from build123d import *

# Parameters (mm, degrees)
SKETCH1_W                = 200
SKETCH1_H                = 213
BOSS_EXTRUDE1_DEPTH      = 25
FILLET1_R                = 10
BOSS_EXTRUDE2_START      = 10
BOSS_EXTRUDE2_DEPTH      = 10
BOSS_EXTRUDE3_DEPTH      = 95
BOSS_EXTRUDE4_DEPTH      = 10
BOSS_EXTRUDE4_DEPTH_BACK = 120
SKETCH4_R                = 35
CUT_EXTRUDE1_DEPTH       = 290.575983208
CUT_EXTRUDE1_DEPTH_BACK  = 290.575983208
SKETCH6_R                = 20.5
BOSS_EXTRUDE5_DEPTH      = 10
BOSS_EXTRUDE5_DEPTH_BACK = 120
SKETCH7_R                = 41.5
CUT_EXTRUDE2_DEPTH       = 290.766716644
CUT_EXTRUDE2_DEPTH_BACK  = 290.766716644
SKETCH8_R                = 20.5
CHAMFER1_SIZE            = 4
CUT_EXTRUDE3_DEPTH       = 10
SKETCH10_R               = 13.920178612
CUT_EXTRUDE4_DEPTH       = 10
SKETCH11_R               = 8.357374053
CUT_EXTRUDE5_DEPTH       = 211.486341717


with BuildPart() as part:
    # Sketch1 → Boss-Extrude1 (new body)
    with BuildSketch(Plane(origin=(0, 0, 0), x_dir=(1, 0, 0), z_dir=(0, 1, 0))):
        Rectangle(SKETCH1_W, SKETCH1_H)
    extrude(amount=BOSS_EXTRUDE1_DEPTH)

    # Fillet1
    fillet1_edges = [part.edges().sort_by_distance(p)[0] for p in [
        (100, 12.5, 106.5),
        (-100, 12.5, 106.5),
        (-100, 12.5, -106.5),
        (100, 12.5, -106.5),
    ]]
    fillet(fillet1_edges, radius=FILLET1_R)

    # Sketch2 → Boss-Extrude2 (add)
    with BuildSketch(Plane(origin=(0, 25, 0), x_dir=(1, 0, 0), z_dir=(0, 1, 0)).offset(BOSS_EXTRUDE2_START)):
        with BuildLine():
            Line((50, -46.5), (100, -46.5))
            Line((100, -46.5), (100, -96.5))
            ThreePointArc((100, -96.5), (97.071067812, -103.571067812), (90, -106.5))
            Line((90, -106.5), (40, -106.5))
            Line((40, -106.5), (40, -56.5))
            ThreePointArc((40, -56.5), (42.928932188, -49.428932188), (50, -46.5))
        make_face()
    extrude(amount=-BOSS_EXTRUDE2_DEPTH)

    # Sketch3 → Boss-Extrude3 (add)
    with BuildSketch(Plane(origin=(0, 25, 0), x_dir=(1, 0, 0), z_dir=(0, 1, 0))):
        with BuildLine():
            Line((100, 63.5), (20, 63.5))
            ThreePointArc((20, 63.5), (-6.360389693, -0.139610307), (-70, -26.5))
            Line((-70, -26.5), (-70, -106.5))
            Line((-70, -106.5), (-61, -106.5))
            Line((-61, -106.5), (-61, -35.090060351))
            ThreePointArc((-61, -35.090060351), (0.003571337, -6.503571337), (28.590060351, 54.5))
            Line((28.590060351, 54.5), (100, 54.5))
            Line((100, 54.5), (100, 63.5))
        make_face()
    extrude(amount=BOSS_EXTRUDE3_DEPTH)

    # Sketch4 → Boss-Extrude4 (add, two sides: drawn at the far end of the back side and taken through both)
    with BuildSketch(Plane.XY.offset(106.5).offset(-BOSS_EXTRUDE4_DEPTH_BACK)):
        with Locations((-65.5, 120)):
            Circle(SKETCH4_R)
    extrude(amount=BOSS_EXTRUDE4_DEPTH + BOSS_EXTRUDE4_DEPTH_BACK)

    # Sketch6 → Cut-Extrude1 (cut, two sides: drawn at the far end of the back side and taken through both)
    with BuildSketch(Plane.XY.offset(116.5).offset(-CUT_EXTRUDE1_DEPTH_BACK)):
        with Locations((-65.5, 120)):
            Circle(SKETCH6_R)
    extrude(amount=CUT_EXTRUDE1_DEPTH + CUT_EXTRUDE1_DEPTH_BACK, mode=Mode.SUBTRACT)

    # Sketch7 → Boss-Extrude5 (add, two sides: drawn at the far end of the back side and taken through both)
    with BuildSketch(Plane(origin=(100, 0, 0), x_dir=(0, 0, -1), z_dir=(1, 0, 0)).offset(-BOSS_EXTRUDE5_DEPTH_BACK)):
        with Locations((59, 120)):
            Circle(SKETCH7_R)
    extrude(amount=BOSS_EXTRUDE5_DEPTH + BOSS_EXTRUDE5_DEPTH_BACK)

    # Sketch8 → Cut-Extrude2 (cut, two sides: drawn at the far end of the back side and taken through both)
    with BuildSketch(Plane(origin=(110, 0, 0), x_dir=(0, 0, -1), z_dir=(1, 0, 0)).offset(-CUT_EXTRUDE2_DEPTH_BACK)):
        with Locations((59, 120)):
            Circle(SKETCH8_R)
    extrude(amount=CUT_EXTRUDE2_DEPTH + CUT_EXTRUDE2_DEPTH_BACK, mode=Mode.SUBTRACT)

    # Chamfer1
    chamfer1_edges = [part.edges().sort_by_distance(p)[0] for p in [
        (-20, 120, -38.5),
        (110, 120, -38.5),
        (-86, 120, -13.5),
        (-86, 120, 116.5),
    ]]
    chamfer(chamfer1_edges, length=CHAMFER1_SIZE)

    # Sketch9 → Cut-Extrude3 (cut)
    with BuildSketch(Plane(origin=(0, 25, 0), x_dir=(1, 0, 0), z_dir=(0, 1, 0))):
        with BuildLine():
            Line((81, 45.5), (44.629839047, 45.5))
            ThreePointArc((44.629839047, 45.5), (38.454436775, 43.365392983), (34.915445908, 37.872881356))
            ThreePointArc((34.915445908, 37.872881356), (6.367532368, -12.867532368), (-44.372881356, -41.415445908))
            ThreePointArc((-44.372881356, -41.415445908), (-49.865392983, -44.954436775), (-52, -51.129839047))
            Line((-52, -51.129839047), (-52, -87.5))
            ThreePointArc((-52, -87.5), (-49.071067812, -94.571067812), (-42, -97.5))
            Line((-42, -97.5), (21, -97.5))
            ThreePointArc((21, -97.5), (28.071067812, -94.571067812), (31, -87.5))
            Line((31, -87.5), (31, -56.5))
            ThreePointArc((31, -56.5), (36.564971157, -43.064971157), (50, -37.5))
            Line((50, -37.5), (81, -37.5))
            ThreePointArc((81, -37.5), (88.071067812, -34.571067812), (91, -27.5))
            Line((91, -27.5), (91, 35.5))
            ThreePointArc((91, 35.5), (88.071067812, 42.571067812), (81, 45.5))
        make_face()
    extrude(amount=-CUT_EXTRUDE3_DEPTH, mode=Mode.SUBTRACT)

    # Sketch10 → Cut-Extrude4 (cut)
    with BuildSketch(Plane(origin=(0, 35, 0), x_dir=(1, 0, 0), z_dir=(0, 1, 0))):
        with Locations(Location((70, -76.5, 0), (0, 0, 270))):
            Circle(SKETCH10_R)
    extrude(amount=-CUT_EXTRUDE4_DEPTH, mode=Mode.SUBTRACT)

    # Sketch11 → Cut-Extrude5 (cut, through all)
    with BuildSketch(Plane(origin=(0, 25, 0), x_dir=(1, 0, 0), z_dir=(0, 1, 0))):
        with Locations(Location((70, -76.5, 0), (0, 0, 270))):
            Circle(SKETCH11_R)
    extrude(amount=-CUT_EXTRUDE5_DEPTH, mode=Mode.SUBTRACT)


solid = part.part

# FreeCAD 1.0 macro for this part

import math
import FreeCAD as App
import Part
import Sketcher
from FreeCAD import Vector


def edges_at(feature, points):
    """Names of the edges that pass closest to the given points."""
    edges = feature.Shape.Edges
    near = lambda p: min(range(len(edges)), key=lambda i: edges[i].distToShape(Part.Vertex(*p))[0])
    return sorted({f"Edge{near(p) + 1}" for p in points})

doc = App.newDocument("Part")
body = doc.addObject("PartDesign::Body", "Body")

sketch1 = body.newObject("Sketcher::SketchObject", "Sketch")
sketch1.AttachmentSupport = (doc.getObject("XZ_Plane"), [""])
sketch1.MapMode = "FlatFace"
sketch1.addGeometry(Part.LineSegment(Vector(-100, -106, 0), Vector(-100, 106, 0)), False)
sketch1.addGeometry(Part.LineSegment(Vector(-100, 106, 0), Vector(100, 106, 0)), False)
sketch1.addGeometry(Part.LineSegment(Vector(100, 106, 0), Vector(100, -106, 0)), False)
sketch1.addGeometry(Part.LineSegment(Vector(100, -106, 0), Vector(-100, -106, 0)), False)
sketch1.addConstraint(Sketcher.Constraint("Coincident", 0, 2, 1, 1))
sketch1.addConstraint(Sketcher.Constraint("Coincident", 1, 2, 2, 1))
sketch1.addConstraint(Sketcher.Constraint("Coincident", 2, 2, 3, 1))
sketch1.addConstraint(Sketcher.Constraint("Coincident", 3, 2, 0, 1))
sketch1.addConstraint(Sketcher.Constraint("Vertical", 0))
sketch1.addConstraint(Sketcher.Constraint("Horizontal", 1))
sketch1.addConstraint(Sketcher.Constraint("Vertical", 2))
sketch1.addConstraint(Sketcher.Constraint("Horizontal", 3))
sketch1.addConstraint(Sketcher.Constraint("Symmetric", 0, 2, 2, 2, -1, 1))
sketch1.addConstraint(Sketcher.Constraint("DistanceX", 1, 1, 1, 2, 200.0))
sketch1.addConstraint(Sketcher.Constraint("DistanceY", 0, 1, 0, 2, 213.0))
pad1 = body.newObject("PartDesign::Pad", "Pad")
pad1.Profile = sketch1
pad1.Length = 25
pad1.Reversed = True
doc.recompute()

fillet = body.newObject("PartDesign::Fillet", "Fillet")
fillet.Base = (pad1, edges_at(pad1, [
    (100, 12.5, 106.5),
    (-100, 12.5, 106.5),
    (-100, 12.5, -106.5),
    (100, 12.5, -106.5),
]))
fillet.Radius = 10

sketch2 = body.newObject("Sketcher::SketchObject", "Sketch001")
sketch2.AttachmentSupport = (doc.getObject("XZ_Plane"), [""])
sketch2.MapMode = "FlatFace"
sketch2.AttachmentOffset = App.Placement(Vector(0, 0, -35), App.Rotation())
sketch2.addGeometry(Part.LineSegment(Vector(100, 46, 0), Vector(50, 46, 0)), False)
sketch2.addGeometry(Part.ArcOfCircle(Part.Circle(Vector(50, 56, 0), Vector(0, 0, 1), 10), math.radians(180), math.radians(270)), False)
sketch2.addGeometry(Part.LineSegment(Vector(40, 56, 0), Vector(40, 106, 0)), False)
sketch2.addGeometry(Part.LineSegment(Vector(40, 106, 0), Vector(90, 106, 0)), False)
sketch2.addGeometry(Part.ArcOfCircle(Part.Circle(Vector(90, 96, 0), Vector(0, 0, 1), 10), math.radians(0), math.radians(90)), False)
sketch2.addGeometry(Part.LineSegment(Vector(100, 96, 0), Vector(100, 46, 0)), False)
sketch2.addConstraint(Sketcher.Constraint("Tangent", 0, 2, 1, 2))
sketch2.addConstraint(Sketcher.Constraint("Tangent", 1, 1, 2, 1))
sketch2.addConstraint(Sketcher.Constraint("Coincident", 2, 2, 3, 1))
sketch2.addConstraint(Sketcher.Constraint("Tangent", 3, 2, 4, 2))
sketch2.addConstraint(Sketcher.Constraint("Tangent", 4, 1, 5, 1))
sketch2.addConstraint(Sketcher.Constraint("Coincident", 5, 2, 0, 1))
sketch2.addConstraint(Sketcher.Constraint("Horizontal", 0))
sketch2.addConstraint(Sketcher.Constraint("Vertical", 2))
sketch2.addConstraint(Sketcher.Constraint("Horizontal", 3))
sketch2.addConstraint(Sketcher.Constraint("Vertical", 5))
sketch2.addConstraint(Sketcher.Constraint("Equal", 1, 4))
sketch2.addConstraint(Sketcher.Constraint("Equal", 3, 2))
sketch2.addConstraint(Sketcher.Constraint("Radius", 1, 10.0))
sketch2.addConstraint(Sketcher.Constraint("DistanceX", 0, 2, 0, 1, 50.0))
sketch2.addConstraint(Sketcher.Constraint("DistanceX", -1, 1, 1, 3, 50.0))
sketch2.addConstraint(Sketcher.Constraint("DistanceY", -1, 1, 1, 3, 56.5))
pad2 = body.newObject("PartDesign::Pad", "Pad001")
pad2.Profile = sketch2
pad2.Length = 10

sketch3 = body.newObject("Sketcher::SketchObject", "Sketch002")
sketch3.AttachmentSupport = (doc.getObject("XZ_Plane"), [""])
sketch3.MapMode = "FlatFace"
sketch3.AttachmentOffset = App.Placement(Vector(0, 0, -25), App.Rotation())
sketch3.addGeometry(Part.LineSegment(Vector(100, -64, 0), Vector(20, -64, 0)), False)
sketch3.addGeometry(Part.ArcOfCircle(Part.Circle(Vector(-70, -63, 0), Vector(0, 0, 1), 90), math.radians(0), math.radians(90)), False)
sketch3.addGeometry(Part.LineSegment(Vector(-70, 26, 0), Vector(-70, 106, 0)), False)
sketch3.addGeometry(Part.LineSegment(Vector(-70, 106, 0), Vector(-61, 106, 0)), False)
sketch3.addGeometry(Part.LineSegment(Vector(-61, 106, 0), Vector(-61, 35, 0)), False)
sketch3.addGeometry(Part.ArcOfCircle(Part.Circle(Vector(-70, -64, 0), Vector(0, 0, 1), 99), math.radians(5), math.radians(85)), False)
sketch3.addGeometry(Part.LineSegment(Vector(29, -54, 0), Vector(100, -54, 0)), False)
sketch3.addGeometry(Part.LineSegment(Vector(100, -54, 0), Vector(100, -64, 0)), False)
sketch3.addConstraint(Sketcher.Constraint("Coincident", 0, 2, 1, 1))
sketch3.addConstraint(Sketcher.Constraint("Coincident", 1, 2, 2, 1))
sketch3.addConstraint(Sketcher.Constraint("Coincident", 2, 2, 3, 1))
sketch3.addConstraint(Sketcher.Constraint("Coincident", 3, 2, 4, 1))
sketch3.addConstraint(Sketcher.Constraint("Coincident", 4, 2, 5, 2))
sketch3.addConstraint(Sketcher.Constraint("Coincident", 5, 1, 6, 1))
sketch3.addConstraint(Sketcher.Constraint("Coincident", 6, 2, 7, 1))
sketch3.addConstraint(Sketcher.Constraint("Coincident", 7, 2, 0, 1))
sketch3.addConstraint(Sketcher.Constraint("Horizontal", 0))
sketch3.addConstraint(Sketcher.Constraint("Vertical", 2))
sketch3.addConstraint(Sketcher.Constraint("Horizontal", 3))
sketch3.addConstraint(Sketcher.Constraint("Vertical", 4))
sketch3.addConstraint(Sketcher.Constraint("Horizontal", 6))
sketch3.addConstraint(Sketcher.Constraint("Vertical", 7))
sketch3.addConstraint(Sketcher.Constraint("Coincident", 5, 3, 1, 3))
sketch3.addConstraint(Sketcher.Constraint("Horizontal", 5, 3, 0, 2))
sketch3.addConstraint(Sketcher.Constraint("Vertical", 5, 3, 1, 2))
sketch3.addConstraint(Sketcher.Constraint("Equal", 0, 2))
sketch3.addConstraint(Sketcher.Constraint("Equal", 6, 4))
sketch3.addConstraint(Sketcher.Constraint("Radius", 1, 90.0))
sketch3.addConstraint(Sketcher.Constraint("Radius", 5, 99.0))
sketch3.addConstraint(Sketcher.Constraint("DistanceX", 0, 2, 0, 1, 80.0))
sketch3.addConstraint(Sketcher.Constraint("DistanceX", 3, 1, 3, 2, 9.0))
sketch3.addConstraint(Sketcher.Constraint("DistanceX", 1, 3, -1, 1, 70.0))
sketch3.addConstraint(Sketcher.Constraint("DistanceY", 1, 3, -1, 1, 63.5))
pad3 = body.newObject("PartDesign::Pad", "Pad002")
pad3.Profile = sketch3
pad3.Length = 95
pad3.Reversed = True

sketch4 = body.newObject("Sketcher::SketchObject", "Sketch003")
sketch4.AttachmentSupport = (doc.getObject("XY_Plane"), [""])
sketch4.MapMode = "FlatFace"
sketch4.AttachmentOffset = App.Placement(Vector(0, 0, 106.5), App.Rotation())
sketch4.addGeometry(Part.Circle(Vector(-66, 120, 0), Vector(0, 0, 1), 35), False)
sketch4.addConstraint(Sketcher.Constraint("Diameter", 0, 70.0))
sketch4.addConstraint(Sketcher.Constraint("DistanceY", -1, 1, 0, 3, 120.0))
sketch4.addConstraint(Sketcher.Constraint("DistanceX", 0, 3, -1, 1, 65.5))
pad4 = body.newObject("PartDesign::Pad", "Pad003")
pad4.Profile = sketch4
pad4.Type = "TwoLengths"
pad4.Length = 10
pad4.Length2 = 120

sketch5 = body.newObject("Sketcher::SketchObject", "Sketch004")
sketch5.AttachmentSupport = (doc.getObject("XY_Plane"), [""])
sketch5.MapMode = "FlatFace"
sketch5.AttachmentOffset = App.Placement(Vector(0, 0, 116.5), App.Rotation())
sketch5.addGeometry(Part.Circle(Vector(-66, 120, 0), Vector(0, 0, 1), 20), False)
sketch5.addConstraint(Sketcher.Constraint("Diameter", 0, 41.0))
sketch5.addConstraint(Sketcher.Constraint("DistanceY", -1, 1, 0, 3, 120.0))
sketch5.addConstraint(Sketcher.Constraint("DistanceX", 0, 3, -1, 1, 65.5))
pocket1 = body.newObject("PartDesign::Pocket", "Pocket")
pocket1.Profile = sketch5
pocket1.Type = "ThroughAll"
pocket1.Midplane = True

sketch6 = body.newObject("Sketcher::SketchObject", "Sketch005")
sketch6.AttachmentSupport = (doc.getObject("YZ_Plane"), [""])
sketch6.MapMode = "FlatFace"
sketch6.AttachmentOffset = App.Placement(Vector(0, 0, 100), App.Rotation())
sketch6.addGeometry(Part.Circle(Vector(120, -59, 0), Vector(0, 0, 1), 42), False)
sketch6.addConstraint(Sketcher.Constraint("Diameter", 0, 83.0))
sketch6.addConstraint(Sketcher.Constraint("DistanceX", -1, 1, 0, 3, 120.0))
sketch6.addConstraint(Sketcher.Constraint("DistanceY", 0, 3, -1, 1, 59.0))
pad5 = body.newObject("PartDesign::Pad", "Pad004")
pad5.Profile = sketch6
pad5.Type = "TwoLengths"
pad5.Length = 10
pad5.Length2 = 120

sketch7 = body.newObject("Sketcher::SketchObject", "Sketch006")
sketch7.AttachmentSupport = (doc.getObject("YZ_Plane"), [""])
sketch7.MapMode = "FlatFace"
sketch7.AttachmentOffset = App.Placement(Vector(0, 0, 110), App.Rotation())
sketch7.addGeometry(Part.Circle(Vector(120, -59, 0), Vector(0, 0, 1), 20), False)
sketch7.addConstraint(Sketcher.Constraint("Diameter", 0, 41.0))
sketch7.addConstraint(Sketcher.Constraint("DistanceX", -1, 1, 0, 3, 120.0))
sketch7.addConstraint(Sketcher.Constraint("DistanceY", 0, 3, -1, 1, 59.0))
pocket2 = body.newObject("PartDesign::Pocket", "Pocket001")
pocket2.Profile = sketch7
pocket2.Type = "ThroughAll"
pocket2.Midplane = True
doc.recompute()

chamfer = body.newObject("PartDesign::Chamfer", "Chamfer")
chamfer.Base = (pocket2, edges_at(pocket2, [
    (-20, 120, -38.5),
    (110, 120, -38.5),
    (-86, 120, -13.5),
    (-86, 120, 116.5),
]))
chamfer.Size = 4

sketch8 = body.newObject("Sketcher::SketchObject", "Sketch007")
sketch8.AttachmentSupport = (doc.getObject("XZ_Plane"), [""])
sketch8.MapMode = "FlatFace"
sketch8.AttachmentOffset = App.Placement(Vector(0, 0, -25), App.Rotation())
sketch8.addGeometry(Part.LineSegment(Vector(81, -46, 0), Vector(45, -46, 0)), False)
sketch8.addGeometry(Part.ArcOfCircle(Part.Circle(Vector(45, -36, 0), Vector(0, 0, 1), 10), math.radians(-166), math.radians(-90)), False)
sketch8.addGeometry(Part.ArcOfCircle(Part.Circle(Vector(-70, -64, 0), Vector(0, 0, 1), 108), math.radians(14), math.radians(76)), False)
sketch8.addGeometry(Part.ArcOfCircle(Part.Circle(Vector(-42, 51, 0), Vector(0, 0, 1), 10), math.radians(180), math.radians(256)), False)
sketch8.addGeometry(Part.LineSegment(Vector(-52, 51, 0), Vector(-52, 88, 0)), False)
sketch8.addGeometry(Part.ArcOfCircle(Part.Circle(Vector(-42, 88, 0), Vector(0, 0, 1), 10), math.radians(90), math.radians(180)), False)
sketch8.addGeometry(Part.LineSegment(Vector(-42, 98, 0), Vector(21, 98, 0)), False)
sketch8.addGeometry(Part.ArcOfCircle(Part.Circle(Vector(21, 88, 0), Vector(0, 0, 1), 10), math.radians(0), math.radians(90)), False)
sketch8.addGeometry(Part.LineSegment(Vector(31, 88, 0), Vector(31, 56, 0)), False)
sketch8.addGeometry(Part.ArcOfCircle(Part.Circle(Vector(50, 56, 0), Vector(0, 0, 1), 19), math.radians(180), math.radians(270)), False)
sketch8.addGeometry(Part.LineSegment(Vector(50, 38, 0), Vector(81, 38, 0)), False)
sketch8.addGeometry(Part.ArcOfCircle(Part.Circle(Vector(81, 28, 0), Vector(0, 0, 1), 10), math.radians(0), math.radians(90)), False)
sketch8.addGeometry(Part.LineSegment(Vector(91, 28, 0), Vector(91, -36, 0)), False)
sketch8.addGeometry(Part.ArcOfCircle(Part.Circle(Vector(81, -36, 0), Vector(0, 0, 1), 10), math.radians(-90), math.radians(0)), False)
sketch8.addConstraint(Sketcher.Constraint("Tangent", 0, 2, 1, 2))
sketch8.addConstraint(Sketcher.Constraint("Tangent", 1, 1, 2, 1))
sketch8.addConstraint(Sketcher.Constraint("Tangent", 2, 2, 3, 2))
sketch8.addConstraint(Sketcher.Constraint("Tangent", 3, 1, 4, 1))
sketch8.addConstraint(Sketcher.Constraint("Tangent", 4, 2, 5, 2))
sketch8.addConstraint(Sketcher.Constraint("Tangent", 5, 1, 6, 1))
sketch8.addConstraint(Sketcher.Constraint("Tangent", 6, 2, 7, 2))
sketch8.addConstraint(Sketcher.Constraint("Tangent", 7, 1, 8, 1))
sketch8.addConstraint(Sketcher.Constraint("Tangent", 8, 2, 9, 1))
sketch8.addConstraint(Sketcher.Constraint("Tangent", 9, 2, 10, 1))
sketch8.addConstraint(Sketcher.Constraint("Tangent", 10, 2, 11, 2))
sketch8.addConstraint(Sketcher.Constraint("Tangent", 11, 1, 12, 1))
sketch8.addConstraint(Sketcher.Constraint("Tangent", 12, 2, 13, 2))
sketch8.addConstraint(Sketcher.Constraint("Tangent", 13, 1, 0, 1))
sketch8.addConstraint(Sketcher.Constraint("Horizontal", 0))
sketch8.addConstraint(Sketcher.Constraint("Vertical", 4))
sketch8.addConstraint(Sketcher.Constraint("Horizontal", 6))
sketch8.addConstraint(Sketcher.Constraint("Vertical", 8))
sketch8.addConstraint(Sketcher.Constraint("Horizontal", 10))
sketch8.addConstraint(Sketcher.Constraint("Vertical", 12))
sketch8.addConstraint(Sketcher.Constraint("Equal", 1, 3))
sketch8.addConstraint(Sketcher.Constraint("Equal", 3, 5))
sketch8.addConstraint(Sketcher.Constraint("Equal", 5, 7))
sketch8.addConstraint(Sketcher.Constraint("Equal", 7, 11))
sketch8.addConstraint(Sketcher.Constraint("Equal", 11, 13))
sketch8.addConstraint(Sketcher.Constraint("Equal", 0, 4))
sketch8.addConstraint(Sketcher.Constraint("Equal", 10, 8))
sketch8.addConstraint(Sketcher.Constraint("Equal", 6, 12))
sketch8.addConstraint(Sketcher.Constraint("Radius", 1, 10.0))
sketch8.addConstraint(Sketcher.Constraint("Radius", 2, 108.0))
sketch8.addConstraint(Sketcher.Constraint("Radius", 9, 19.0))
sketch8.addConstraint(Sketcher.Constraint("DistanceX", 6, 1, 6, 2, 63.0))
sketch8.addConstraint(Sketcher.Constraint("DistanceX", 10, 1, 10, 2, 31.0))
sketch8.addConstraint(Sketcher.Constraint("DistanceX", 2, 3, -1, 1, 70.0))
sketch8.addConstraint(Sketcher.Constraint("DistanceX", 3, 3, -1, 1, 42.0))
sketch8.addConstraint(Sketcher.Constraint("DistanceY", 1, 3, -1, 1, 35.5))
pocket3 = body.newObject("PartDesign::Pocket", "Pocket002")
pocket3.Profile = sketch8
pocket3.Length = 10
pocket3.Reversed = True

sketch9 = body.newObject("Sketcher::SketchObject", "Sketch008")
sketch9.AttachmentSupport = (doc.getObject("XZ_Plane"), [""])
sketch9.MapMode = "FlatFace"
sketch9.AttachmentOffset = App.Placement(Vector(0, 0, -35), App.Rotation())
sketch9.addGeometry(Part.Circle(Vector(70, 76, 0), Vector(0, 0, 1), 14), False)
sketch9.addConstraint(Sketcher.Constraint("DistanceX", -1, 1, 0, 3, 70.0))
sketch9.addConstraint(Sketcher.Constraint("DistanceY", -1, 1, 0, 3, 76.5))
sketch9.addConstraint(Sketcher.Constraint("Diameter", 0, 27.840357))
pocket4 = body.newObject("PartDesign::Pocket", "Pocket003")
pocket4.Profile = sketch9
pocket4.Length = 10
pocket4.Reversed = True

sketch10 = body.newObject("Sketcher::SketchObject", "Sketch009")
sketch10.AttachmentSupport = (doc.getObject("XZ_Plane"), [""])
sketch10.MapMode = "FlatFace"
sketch10.AttachmentOffset = App.Placement(Vector(0, 0, -25), App.Rotation())
sketch10.addGeometry(Part.Circle(Vector(70, 76, 0), Vector(0, 0, 1), 8), False)
sketch10.addConstraint(Sketcher.Constraint("DistanceX", -1, 1, 0, 3, 70.0))
sketch10.addConstraint(Sketcher.Constraint("DistanceY", -1, 1, 0, 3, 76.5))
sketch10.addConstraint(Sketcher.Constraint("Diameter", 0, 16.714748))
pocket5 = body.newObject("PartDesign::Pocket", "Pocket004")
pocket5.Profile = sketch10
pocket5.Type = "ThroughAll"
pocket5.Reversed = True

doc.recompute()
